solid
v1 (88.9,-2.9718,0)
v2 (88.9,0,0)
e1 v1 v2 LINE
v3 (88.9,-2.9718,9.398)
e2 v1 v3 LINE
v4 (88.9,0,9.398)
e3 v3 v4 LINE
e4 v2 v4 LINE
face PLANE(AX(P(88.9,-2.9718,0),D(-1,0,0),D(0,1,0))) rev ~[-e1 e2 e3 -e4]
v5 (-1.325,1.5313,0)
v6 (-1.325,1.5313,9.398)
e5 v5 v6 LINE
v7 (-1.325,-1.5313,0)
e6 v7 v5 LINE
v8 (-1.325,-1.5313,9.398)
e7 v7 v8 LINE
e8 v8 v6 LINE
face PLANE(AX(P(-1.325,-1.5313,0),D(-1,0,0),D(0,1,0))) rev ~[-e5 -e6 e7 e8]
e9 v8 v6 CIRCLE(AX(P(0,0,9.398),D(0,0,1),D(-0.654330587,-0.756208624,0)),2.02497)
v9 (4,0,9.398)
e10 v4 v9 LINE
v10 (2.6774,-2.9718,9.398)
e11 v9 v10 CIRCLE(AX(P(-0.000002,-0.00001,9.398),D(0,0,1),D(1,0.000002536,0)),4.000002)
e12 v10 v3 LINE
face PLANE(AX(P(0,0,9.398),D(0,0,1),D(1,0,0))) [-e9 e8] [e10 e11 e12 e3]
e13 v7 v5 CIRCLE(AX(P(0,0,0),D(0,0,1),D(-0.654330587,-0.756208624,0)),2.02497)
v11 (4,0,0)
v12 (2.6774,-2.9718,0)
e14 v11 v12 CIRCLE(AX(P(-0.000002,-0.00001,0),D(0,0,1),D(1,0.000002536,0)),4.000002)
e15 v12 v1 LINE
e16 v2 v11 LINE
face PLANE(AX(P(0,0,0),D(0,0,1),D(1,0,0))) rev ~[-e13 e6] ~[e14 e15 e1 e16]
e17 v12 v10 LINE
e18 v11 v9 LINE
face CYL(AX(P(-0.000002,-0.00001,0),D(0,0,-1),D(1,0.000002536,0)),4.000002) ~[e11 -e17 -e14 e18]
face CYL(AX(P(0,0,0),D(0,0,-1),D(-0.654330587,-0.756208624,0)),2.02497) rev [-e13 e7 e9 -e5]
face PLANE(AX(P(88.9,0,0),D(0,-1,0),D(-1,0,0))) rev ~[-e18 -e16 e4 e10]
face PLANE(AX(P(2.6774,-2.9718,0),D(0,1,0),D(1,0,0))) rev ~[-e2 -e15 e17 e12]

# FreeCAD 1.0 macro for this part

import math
import FreeCAD as App
import Part
import Sketcher

V = App.Vector

doc = App.newDocument("Part")
params = doc.addObject("Spreadsheet::Sheet", "Params")
for row, (alias, value) in enumerate([
    ("sketch1_radius", "4 mm"),
    ("sketch1_width", "84.9 mm"),
    ("pad1_length", "9.398 mm"),
], start=1):
    params.set(f"A{row}", alias)
    params.set(f"B{row}", "=" + value)
    params.setAlias(f"B{row}", alias)

body = doc.addObject("PartDesign::Body", "Body")

sketch1 = body.newObject("Sketcher::SketchObject", "Sketch")
sketch1.AttachmentSupport = (doc.getObject("XY_Plane"), [""])
sketch1.MapMode = "FlatFace"
sketch1.addGeometry(Part.LineSegment(V(88.9, 0, 0), V(4, 0, 0)), False)
sketch1.addGeometry(Part.ArcOfCircle(Part.Circle(V(0, 0, 0), V(0, 0, 1), 4), math.radians(0), math.radians(312)), False)
sketch1.addGeometry(Part.LineSegment(V(2.7, -3, 0), V(88.9, -3, 0)), False)
sketch1.addGeometry(Part.LineSegment(V(88.9, -3, 0), V(88.9, 0, 0)), False)
sketch1.addGeometry(Part.ArcOfCircle(Part.Circle(V(0, 0, 0), V(0, 0, 1), 2), math.radians(-131), math.radians(131)), False)
sketch1.addGeometry(Part.LineSegment(V(-1.3, -1.5, 0), V(-1.3, 1.5, 0)), False)
sketch1.addConstraint(Sketcher.Constraint("Coincident", 0, 2, 1, 1))
sketch1.addConstraint(Sketcher.Constraint("Coincident", 1, 2, 2, 1))
sketch1.addConstraint(Sketcher.Constraint("Coincident", 2, 2, 3, 1))
sketch1.addConstraint(Sketcher.Constraint("Coincident", 3, 2, 0, 1))
sketch1.addConstraint(Sketcher.Constraint("Coincident", 4, 1, 5, 1))
sketch1.addConstraint(Sketcher.Constraint("Coincident", 5, 2, 4, 2))
sketch1.addConstraint(Sketcher.Constraint("Horizontal", 0))
sketch1.addConstraint(Sketcher.Constraint("Horizontal", 2))
sketch1.addConstraint(Sketcher.Constraint("Vertical", 3))
sketch1.addConstraint(Sketcher.Constraint("Vertical", 5))
sketch1.addConstraint(Sketcher.Constraint("Coincident", 1, 3, -1, 1))
sketch1.addConstraint(Sketcher.Constraint("Coincident", 4, 3, -1, 1))
sketch1.addConstraint(Sketcher.Constraint("PointOnObject", 0, 2, -1))
sketch1.addConstraint(Sketcher.Constraint("Radius", 1, 4.0))
sketch1.addConstraint(Sketcher.Constraint("DistanceX", 0, 2, 0, 1, 84.9))
sketch1.addConstraint(Sketcher.Constraint("Radius", 4, 2.025))
sketch1.addConstraint(Sketcher.Constraint("DistanceY", 3, 1, 3, 2, 2.9718))
sketch1.addConstraint(Sketcher.Constraint("DistanceY", 5, 1, 5, 2, 3.0626))
sketch1.setExpression("Constraints[13]", "Params.sketch1_radius")
sketch1.setExpression("Constraints[14]", "Params.sketch1_width")
pad1 = body.newObject("PartDesign::Pad", "Pad")
pad1.Profile = sketch1
pad1.setExpression("Length", "Params.pad1_length")

doc.recompute()
